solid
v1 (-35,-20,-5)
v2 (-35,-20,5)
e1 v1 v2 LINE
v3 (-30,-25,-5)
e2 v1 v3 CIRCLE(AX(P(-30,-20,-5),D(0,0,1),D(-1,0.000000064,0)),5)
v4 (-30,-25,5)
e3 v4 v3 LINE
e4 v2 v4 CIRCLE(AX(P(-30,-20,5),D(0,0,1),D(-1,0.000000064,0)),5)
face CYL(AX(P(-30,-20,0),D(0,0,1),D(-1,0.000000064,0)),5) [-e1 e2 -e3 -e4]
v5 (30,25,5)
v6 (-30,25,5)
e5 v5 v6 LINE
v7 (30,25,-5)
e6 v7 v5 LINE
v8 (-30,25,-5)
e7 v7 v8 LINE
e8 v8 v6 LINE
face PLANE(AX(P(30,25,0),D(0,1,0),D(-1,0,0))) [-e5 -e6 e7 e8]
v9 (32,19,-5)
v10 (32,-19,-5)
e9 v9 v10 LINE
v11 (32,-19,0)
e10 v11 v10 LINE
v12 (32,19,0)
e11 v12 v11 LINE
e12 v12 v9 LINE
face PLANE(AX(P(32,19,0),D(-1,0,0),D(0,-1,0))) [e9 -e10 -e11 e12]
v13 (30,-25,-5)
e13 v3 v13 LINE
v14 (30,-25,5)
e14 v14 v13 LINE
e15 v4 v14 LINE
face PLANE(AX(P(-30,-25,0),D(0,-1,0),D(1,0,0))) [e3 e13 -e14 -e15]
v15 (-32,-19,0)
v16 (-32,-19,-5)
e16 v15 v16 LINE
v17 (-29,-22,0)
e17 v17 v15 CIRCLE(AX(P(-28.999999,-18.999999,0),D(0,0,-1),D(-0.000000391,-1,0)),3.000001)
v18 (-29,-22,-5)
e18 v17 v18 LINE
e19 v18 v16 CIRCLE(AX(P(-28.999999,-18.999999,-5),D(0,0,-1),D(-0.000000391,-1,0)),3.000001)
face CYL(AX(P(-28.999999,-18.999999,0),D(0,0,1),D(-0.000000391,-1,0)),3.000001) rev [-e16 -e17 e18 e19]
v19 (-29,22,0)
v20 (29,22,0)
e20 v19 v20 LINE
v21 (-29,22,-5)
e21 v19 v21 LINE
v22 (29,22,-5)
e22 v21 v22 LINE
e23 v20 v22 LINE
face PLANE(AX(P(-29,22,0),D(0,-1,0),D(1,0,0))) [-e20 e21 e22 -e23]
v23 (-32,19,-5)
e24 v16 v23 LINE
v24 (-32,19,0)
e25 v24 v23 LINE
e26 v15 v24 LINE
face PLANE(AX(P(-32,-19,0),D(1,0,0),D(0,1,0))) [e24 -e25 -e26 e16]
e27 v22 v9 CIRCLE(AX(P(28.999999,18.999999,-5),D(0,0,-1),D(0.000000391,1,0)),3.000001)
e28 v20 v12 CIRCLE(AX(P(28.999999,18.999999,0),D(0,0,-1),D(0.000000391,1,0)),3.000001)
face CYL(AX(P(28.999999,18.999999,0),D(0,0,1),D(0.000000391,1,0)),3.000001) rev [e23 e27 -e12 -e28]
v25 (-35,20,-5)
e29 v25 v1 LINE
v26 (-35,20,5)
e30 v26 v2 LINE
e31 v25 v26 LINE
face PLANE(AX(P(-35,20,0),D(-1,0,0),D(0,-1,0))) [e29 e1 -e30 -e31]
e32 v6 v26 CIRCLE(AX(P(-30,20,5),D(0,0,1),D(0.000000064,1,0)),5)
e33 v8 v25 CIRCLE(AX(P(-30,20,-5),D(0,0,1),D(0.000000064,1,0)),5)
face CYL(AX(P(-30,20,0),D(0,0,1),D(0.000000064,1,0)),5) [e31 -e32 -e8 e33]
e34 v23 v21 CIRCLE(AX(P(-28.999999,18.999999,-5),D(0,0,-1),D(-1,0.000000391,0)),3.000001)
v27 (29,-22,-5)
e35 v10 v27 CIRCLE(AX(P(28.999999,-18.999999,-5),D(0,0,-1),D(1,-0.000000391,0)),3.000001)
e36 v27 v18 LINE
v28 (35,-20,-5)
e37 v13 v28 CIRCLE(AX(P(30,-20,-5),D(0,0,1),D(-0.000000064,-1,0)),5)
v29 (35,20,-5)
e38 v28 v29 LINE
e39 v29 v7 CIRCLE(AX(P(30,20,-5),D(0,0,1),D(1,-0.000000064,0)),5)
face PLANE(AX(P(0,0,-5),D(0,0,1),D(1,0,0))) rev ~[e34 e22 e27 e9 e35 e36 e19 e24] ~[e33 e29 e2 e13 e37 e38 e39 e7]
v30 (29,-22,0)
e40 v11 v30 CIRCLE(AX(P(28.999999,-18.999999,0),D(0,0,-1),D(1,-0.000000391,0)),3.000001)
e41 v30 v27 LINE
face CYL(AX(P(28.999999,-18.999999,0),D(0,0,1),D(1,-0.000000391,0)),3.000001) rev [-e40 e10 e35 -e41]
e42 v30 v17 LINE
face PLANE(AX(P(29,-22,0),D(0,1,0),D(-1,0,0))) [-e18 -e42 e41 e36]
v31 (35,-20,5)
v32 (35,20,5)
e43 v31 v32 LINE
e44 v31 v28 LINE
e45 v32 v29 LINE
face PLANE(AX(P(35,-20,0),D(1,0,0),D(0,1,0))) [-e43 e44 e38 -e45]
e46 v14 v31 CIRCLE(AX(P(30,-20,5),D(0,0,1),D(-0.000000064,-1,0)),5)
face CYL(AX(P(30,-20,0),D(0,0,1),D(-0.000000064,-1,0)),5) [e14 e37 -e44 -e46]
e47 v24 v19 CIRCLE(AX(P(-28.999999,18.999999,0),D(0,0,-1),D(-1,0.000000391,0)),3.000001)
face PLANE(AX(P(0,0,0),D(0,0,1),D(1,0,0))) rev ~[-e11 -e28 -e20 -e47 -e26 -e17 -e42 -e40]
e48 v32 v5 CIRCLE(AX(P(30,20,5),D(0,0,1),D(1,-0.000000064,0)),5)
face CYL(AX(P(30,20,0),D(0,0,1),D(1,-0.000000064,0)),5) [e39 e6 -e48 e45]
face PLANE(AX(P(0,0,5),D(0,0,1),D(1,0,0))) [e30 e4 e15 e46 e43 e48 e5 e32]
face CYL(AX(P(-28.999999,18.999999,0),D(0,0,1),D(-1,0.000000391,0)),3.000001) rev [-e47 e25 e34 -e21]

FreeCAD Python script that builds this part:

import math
import FreeCAD as App
import Part
import Sketcher

doc = App.newDocument("Part")
body = doc.addObject("PartDesign::Body", "Body")

# Sketch on XY plane
sketch1 = body.newObject("Sketcher::SketchObject", "Sketch")
sketch1.AttachmentSupport = (doc.getObject("XY_Plane"), [""])
sketch1.MapMode = "FlatFace"
sketch1.addGeometry(Part.ArcOfCircle(Part.Circle(App.Vector(30, 20, 0), App.Vector(0, 0, 1), 5), math.radians(-0.000004), math.radians(90.000004)), False)
sketch1.addGeometry(Part.LineSegment(App.Vector(30, 25, 0), App.Vector(-30, 25, 0)), False)
sketch1.addGeometry(Part.ArcOfCircle(Part.Circle(App.Vector(-30, 20, 0), App.Vector(0, 0, 1), 5), math.radians(89.999996), math.radians(180.000004)), False)
sketch1.addGeometry(Part.LineSegment(App.Vector(-35, 20, 0), App.Vector(-35, -20, 0)), False)
sketch1.addGeometry(Part.ArcOfCircle(Part.Circle(App.Vector(-30, -20, 0), App.Vector(0, 0, 1), 5), math.radians(179.999996), math.radians(270.000004)), False)
sketch1.addGeometry(Part.LineSegment(App.Vector(-30, -25, 0), App.Vector(30, -25, 0)), False)
sketch1.addGeometry(Part.ArcOfCircle(Part.Circle(App.Vector(30, -20, 0), App.Vector(0, 0, 1), 5), math.radians(-90.000004), math.radians(0.000004)), False)
sketch1.addGeometry(Part.LineSegment(App.Vector(35, -20, 0), App.Vector(35, 20, 0)), False)
sketch1.addConstraint(Sketcher.Constraint("Tangent", 0, 2, 1, 1))
sketch1.addConstraint(Sketcher.Constraint("Tangent", 1, 2, 2, 1))
sketch1.addConstraint(Sketcher.Constraint("Tangent", 2, 2, 3, 1))
sketch1.addConstraint(Sketcher.Constraint("Tangent", 3, 2, 4, 1))
sketch1.addConstraint(Sketcher.Constraint("Tangent", 4, 2, 5, 1))
sketch1.addConstraint(Sketcher.Constraint("Tangent", 5, 2, 6, 1))
sketch1.addConstraint(Sketcher.Constraint("Tangent", 6, 2, 7, 1))
sketch1.addConstraint(Sketcher.Constraint("Tangent", 7, 2, 0, 1))
sketch1.addConstraint(Sketcher.Constraint("Horizontal", 1))
sketch1.addConstraint(Sketcher.Constraint("Vertical", 3))
sketch1.addConstraint(Sketcher.Constraint("Horizontal", 5))
sketch1.addConstraint(Sketcher.Constraint("Vertical", 7))
sketch1.addConstraint(Sketcher.Constraint("Equal", 0, 2))
sketch1.addConstraint(Sketcher.Constraint("Equal", 2, 4))
sketch1.addConstraint(Sketcher.Constraint("Equal", 4, 6))
sketch1.addConstraint(Sketcher.Constraint("Symmetric", 0, 3, 4, 3, -1, 1))
sketch1.addConstraint(Sketcher.Constraint("Radius", 0, 5.0))
sketch1.addConstraint(Sketcher.Constraint("DistanceX", 1, 2, 1, 1, 60.0))
sketch1.addConstraint(Sketcher.Constraint("DistanceY", 3, 2, 3, 1, 40.0))
pad1 = body.newObject("PartDesign::Pad", "Pad")
pad1.Profile = sketch1
pad1.Length = 5

# Sketch on XY plane
sketch2 = body.newObject("Sketcher::SketchObject", "Sketch001")
sketch2.AttachmentSupport = (doc.getObject("XY_Plane"), [""])
sketch2.MapMode = "FlatFace"
sketch2.addGeometry(Part.ArcOfCircle(Part.Circle(App.Vector(30, 20, 0), App.Vector(0, 0, 1), 5), math.radians(-0.000004), math.radians(90.000004)), False)
sketch2.addGeometry(Part.LineSegment(App.Vector(30, 25, 0), App.Vector(-30, 25, 0)), False)
sketch2.addGeometry(Part.ArcOfCircle(Part.Circle(App.Vector(-30, 20, 0), App.Vector(0, 0, 1), 5), math.radians(89.999996), math.radians(180.000004)), False)
sketch2.addGeometry(Part.LineSegment(App.Vector(-35, 20, 0), App.Vector(-35, -20, 0)), False)
sketch2.addGeometry(Part.ArcOfCircle(Part.Circle(App.Vector(-30, -20, 0), App.Vector(0, 0, 1), 5), math.radians(179.999996), math.radians(270.000004)), False)
sketch2.addGeometry(Part.LineSegment(App.Vector(-30, -25, 0), App.Vector(30, -25, 0)), False)
sketch2.addGeometry(Part.ArcOfCircle(Part.Circle(App.Vector(30, -20, 0), App.Vector(0, 0, 1), 5), math.radians(-90.000004), math.radians(0.000004)), False)
sketch2.addGeometry(Part.LineSegment(App.Vector(35, -20, 0), App.Vector(35, 20, 0)), False)
sketch2.addGeometry(Part.ArcOfCircle(Part.Circle(App.Vector(-28.999999, -18.999999, 0), App.Vector(0, 0, 1), 3.000001), math.radians(-179.999978), math.radians(-90.000022)), False)
sketch2.addGeometry(Part.LineSegment(App.Vector(-32, -19, 0), App.Vector(-32, 19, 0)), False)
sketch2.addGeometry(Part.ArcOfCircle(Part.Circle(App.Vector(-28.999999, 18.999999, 0), App.Vector(0, 0, 1), 3.000001), math.radians(90.000022), math.radians(179.999978)), False)
sketch2.addGeometry(Part.LineSegment(App.Vector(-29, 22, 0), App.Vector(29, 22, 0)), False)
sketch2.addGeometry(Part.ArcOfCircle(Part.Circle(App.Vector(28.999999, 18.999999, 0), App.Vector(0, 0, 1), 3.000001), math.radians(0.000022), math.radians(89.999978)), False)
sketch2.addGeometry(Part.LineSegment(App.Vector(32, 19, 0), App.Vector(32, -19, 0)), False)
sketch2.addGeometry(Part.ArcOfCircle(Part.Circle(App.Vector(28.999999, -18.999999, 0), App.Vector(0, 0, 1), 3.000001), math.radians(-89.999978), math.radians(-0.000022)), False)
sketch2.addGeometry(Part.LineSegment(App.Vector(29, -22, 0), App.Vector(-29, -22, 0)), False)
sketch2.addConstraint(Sketcher.Constraint("Tangent", 0, 2, 1, 1))
sketch2.addConstraint(Sketcher.Constraint("Tangent", 1, 2, 2, 1))
sketch2.addConstraint(Sketcher.Constraint("Tangent", 2, 2, 3, 1))
sketch2.addConstraint(Sketcher.Constraint("Tangent", 3, 2, 4, 1))
sketch2.addConstraint(Sketcher.Constraint("Tangent", 4, 2, 5, 1))
sketch2.addConstraint(Sketcher.Constraint("Tangent", 5, 2, 6, 1))
sketch2.addConstraint(Sketcher.Constraint("Tangent", 6, 2, 7, 1))
sketch2.addConstraint(Sketcher.Constraint("Tangent", 7, 2, 0, 1))
sketch2.addConstraint(Sketcher.Constraint("Tangent", 8, 1, 9, 1))
sketch2.addConstraint(Sketcher.Constraint("Tangent", 9, 2, 10, 2))
sketch2.addConstraint(Sketcher.Constraint("Tangent", 10, 1, 11, 1))
sketch2.addConstraint(Sketcher.Constraint("Tangent", 11, 2, 12, 2))
sketch2.addConstraint(Sketcher.Constraint("Tangent", 12, 1, 13, 1))
sketch2.addConstraint(Sketcher.Constraint("Tangent", 13, 2, 14, 2))
sketch2.addConstraint(Sketcher.Constraint("Tangent", 14, 1, 15, 1))
sketch2.addConstraint(Sketcher.Constraint("Tangent", 15, 2, 8, 2))
sketch2.addConstraint(Sketcher.Constraint("Horizontal", 1))
sketch2.addConstraint(Sketcher.Constraint("Vertical", 3))
sketch2.addConstraint(Sketcher.Constraint("Horizontal", 5))
sketch2.addConstraint(Sketcher.Constraint("Vertical", 7))
sketch2.addConstraint(Sketcher.Constraint("Vertical", 9))
sketch2.addConstraint(Sketcher.Constraint("Horizontal", 11))
sketch2.addConstraint(Sketcher.Constraint("Vertical", 13))
sketch2.addConstraint(Sketcher.Constraint("Horizontal", 15))
sketch2.addConstraint(Sketcher.Constraint("Equal", 0, 2))
sketch2.addConstraint(Sketcher.Constraint("Equal", 2, 4))
sketch2.addConstraint(Sketcher.Constraint("Equal", 4, 6))
sketch2.addConstraint(Sketcher.Constraint("Equal", 8, 10))
sketch2.addConstraint(Sketcher.Constraint("Equal", 10, 12))
sketch2.addConstraint(Sketcher.Constraint("Equal", 12, 14))
sketch2.addConstraint(Sketcher.Constraint("Symmetric", 0, 3, 4, 3, -1, 1))
sketch2.addConstraint(Sketcher.Constraint("Symmetric", 8, 3, 12, 3, -1, 1))
sketch2.addConstraint(Sketcher.Constraint("Radius", 0, 5.0))
sketch2.addConstraint(Sketcher.Constraint("Radius", 8, 3.000001))
sketch2.addConstraint(Sketcher.Constraint("DistanceX", 1, 2, 1, 1, 60.0))
sketch2.addConstraint(Sketcher.Constraint("DistanceX", 11, 1, 11, 2, 58.0))
sketch2.addConstraint(Sketcher.Constraint("DistanceY", 3, 2, 3, 1, 40.0))
sketch2.addConstraint(Sketcher.Constraint("DistanceY", 9, 1, 9, 2, 38.0))
pad2 = body.newObject("PartDesign::Pad", "Pad001")
pad2.Profile = sketch2
pad2.Length = 5
pad2.Reversed = True

doc.recompute()
